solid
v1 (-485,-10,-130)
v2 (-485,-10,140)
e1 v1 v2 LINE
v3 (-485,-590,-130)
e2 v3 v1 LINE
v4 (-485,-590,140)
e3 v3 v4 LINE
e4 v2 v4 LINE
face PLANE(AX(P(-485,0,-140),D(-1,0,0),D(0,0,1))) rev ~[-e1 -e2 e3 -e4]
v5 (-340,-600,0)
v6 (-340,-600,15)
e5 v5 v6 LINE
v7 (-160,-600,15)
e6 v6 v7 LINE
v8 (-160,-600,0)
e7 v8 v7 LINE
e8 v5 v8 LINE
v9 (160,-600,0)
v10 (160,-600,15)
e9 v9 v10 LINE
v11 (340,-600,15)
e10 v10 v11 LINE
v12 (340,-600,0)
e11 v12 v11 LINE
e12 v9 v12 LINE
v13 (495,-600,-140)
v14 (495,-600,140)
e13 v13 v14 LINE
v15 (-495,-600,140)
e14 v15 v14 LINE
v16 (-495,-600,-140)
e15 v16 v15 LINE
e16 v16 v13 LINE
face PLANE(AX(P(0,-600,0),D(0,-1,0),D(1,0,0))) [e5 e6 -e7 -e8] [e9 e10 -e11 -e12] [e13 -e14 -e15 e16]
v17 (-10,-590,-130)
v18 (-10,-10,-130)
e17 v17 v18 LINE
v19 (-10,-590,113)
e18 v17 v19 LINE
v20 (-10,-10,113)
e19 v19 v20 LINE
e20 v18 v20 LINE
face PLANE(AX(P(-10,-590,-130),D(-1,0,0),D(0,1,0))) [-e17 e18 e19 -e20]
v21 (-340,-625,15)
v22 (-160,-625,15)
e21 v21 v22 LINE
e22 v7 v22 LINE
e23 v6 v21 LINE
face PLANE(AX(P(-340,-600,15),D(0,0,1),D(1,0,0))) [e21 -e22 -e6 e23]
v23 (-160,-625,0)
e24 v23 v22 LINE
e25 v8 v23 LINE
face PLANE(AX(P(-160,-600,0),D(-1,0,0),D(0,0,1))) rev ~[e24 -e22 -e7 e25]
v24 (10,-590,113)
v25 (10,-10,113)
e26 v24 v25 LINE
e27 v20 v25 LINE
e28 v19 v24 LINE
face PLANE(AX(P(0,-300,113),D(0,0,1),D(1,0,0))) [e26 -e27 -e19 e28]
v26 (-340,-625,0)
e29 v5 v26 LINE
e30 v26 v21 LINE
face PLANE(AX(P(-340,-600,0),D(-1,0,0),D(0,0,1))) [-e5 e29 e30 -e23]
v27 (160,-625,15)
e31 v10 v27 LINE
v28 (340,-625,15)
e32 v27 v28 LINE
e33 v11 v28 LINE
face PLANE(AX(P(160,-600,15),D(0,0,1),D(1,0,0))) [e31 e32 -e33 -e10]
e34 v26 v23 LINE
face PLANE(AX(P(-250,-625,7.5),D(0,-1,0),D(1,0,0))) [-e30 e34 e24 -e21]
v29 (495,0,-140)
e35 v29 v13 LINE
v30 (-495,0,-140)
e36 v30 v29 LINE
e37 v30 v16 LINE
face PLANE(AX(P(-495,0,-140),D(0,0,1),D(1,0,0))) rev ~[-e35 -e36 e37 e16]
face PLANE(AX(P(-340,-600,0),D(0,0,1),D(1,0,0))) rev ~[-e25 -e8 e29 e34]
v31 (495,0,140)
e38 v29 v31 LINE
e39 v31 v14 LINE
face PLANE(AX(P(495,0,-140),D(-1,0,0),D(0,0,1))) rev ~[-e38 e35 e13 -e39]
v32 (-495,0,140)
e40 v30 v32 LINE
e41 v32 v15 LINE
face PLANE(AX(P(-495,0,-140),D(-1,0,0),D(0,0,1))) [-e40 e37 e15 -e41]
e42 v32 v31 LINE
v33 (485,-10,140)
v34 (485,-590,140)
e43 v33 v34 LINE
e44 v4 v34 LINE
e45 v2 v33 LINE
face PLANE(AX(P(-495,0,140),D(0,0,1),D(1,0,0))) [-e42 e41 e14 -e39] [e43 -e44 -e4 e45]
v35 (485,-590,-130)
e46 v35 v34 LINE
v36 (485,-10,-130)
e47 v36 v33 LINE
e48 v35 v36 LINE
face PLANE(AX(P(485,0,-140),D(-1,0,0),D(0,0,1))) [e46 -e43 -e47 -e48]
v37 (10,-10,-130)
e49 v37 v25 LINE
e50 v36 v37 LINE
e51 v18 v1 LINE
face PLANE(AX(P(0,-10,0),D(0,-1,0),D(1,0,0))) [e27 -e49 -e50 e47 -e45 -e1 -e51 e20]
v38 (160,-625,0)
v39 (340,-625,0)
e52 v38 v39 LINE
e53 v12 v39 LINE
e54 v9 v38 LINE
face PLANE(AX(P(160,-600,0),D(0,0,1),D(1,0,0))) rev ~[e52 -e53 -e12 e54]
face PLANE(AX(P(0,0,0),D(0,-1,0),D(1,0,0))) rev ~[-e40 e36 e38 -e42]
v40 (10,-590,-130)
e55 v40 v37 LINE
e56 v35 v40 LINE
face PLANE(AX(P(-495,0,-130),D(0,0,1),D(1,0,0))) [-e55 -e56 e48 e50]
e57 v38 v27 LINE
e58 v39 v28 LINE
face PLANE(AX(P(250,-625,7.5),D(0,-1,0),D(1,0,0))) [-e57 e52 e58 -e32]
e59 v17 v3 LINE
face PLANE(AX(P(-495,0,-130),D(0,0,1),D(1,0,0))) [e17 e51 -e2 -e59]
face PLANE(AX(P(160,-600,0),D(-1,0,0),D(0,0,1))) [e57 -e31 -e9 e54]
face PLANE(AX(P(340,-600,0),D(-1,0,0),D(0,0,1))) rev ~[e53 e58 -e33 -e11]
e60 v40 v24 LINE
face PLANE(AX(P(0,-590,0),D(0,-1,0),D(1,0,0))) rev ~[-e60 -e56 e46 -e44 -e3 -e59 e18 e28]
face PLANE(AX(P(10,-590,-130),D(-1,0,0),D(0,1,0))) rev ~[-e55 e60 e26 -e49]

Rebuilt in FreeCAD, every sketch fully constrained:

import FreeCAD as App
import Part
import Sketcher


def faces_at(feature, points):
    """Names of the faces that lie closest to the given points."""
    faces = feature.Shape.Faces
    near = lambda p: min(range(len(faces)), key=lambda i: faces[i].distToShape(Part.Vertex(*p))[0])
    return sorted({f"Face{near(p) + 1}" for p in points})

doc = App.newDocument("Part")
params = doc.addObject("Spreadsheet::Sheet", "Params")
for row, (alias, value) in enumerate([
    ("sketch1_width", "990 mm"),
    ("sketch1_height", "280 mm"),
    ("pad1_length", "600 mm"),
    ("thickness_wall", "10 mm"),
    ("sketch2_width", "20 mm"),
    ("sketch2_height", "580 mm"),
    ("pad2_length", "243 mm"),
    ("sketch3_width", "180 mm"),
    ("sketch3_height", "15 mm"),
    ("pad3_length", "25 mm"),
], start=1):
    params.set(f"A{row}", alias)
    params.set(f"B{row}", "=" + value)
    params.setAlias(f"B{row}", alias)

body = doc.addObject("PartDesign::Body", "Body")

# Sketch on XZ plane
sketch1 = doc.addObject("Sketcher::SketchObject", "Sketch")
body.addObject(sketch1)
sketch1.AttachmentSupport = (doc.XZ_Plane, [""])
sketch1.MapMode = "FlatFace"
sketch1.addGeometry([
    Part.LineSegment(App.Vector(-495, 140, 0), App.Vector(-495, -140, 0)),
    Part.LineSegment(App.Vector(-495, -140, 0), App.Vector(495, -140, 0)),
    Part.LineSegment(App.Vector(495, -140, 0), App.Vector(495, 140, 0)),
    Part.LineSegment(App.Vector(495, 140, 0), App.Vector(-495, 140, 0)),
], False)
sketch1.addConstraint([
    Sketcher.Constraint("Coincident", 0, 2, 1, 1),
    Sketcher.Constraint("Coincident", 1, 2, 2, 1),
    Sketcher.Constraint("Coincident", 2, 2, 3, 1),
    Sketcher.Constraint("Coincident", 3, 2, 0, 1),
    Sketcher.Constraint("Vertical", 0),
    Sketcher.Constraint("Horizontal", 1),
    Sketcher.Constraint("Vertical", 2),
    Sketcher.Constraint("Horizontal", 3),
    Sketcher.Constraint("Symmetric", 0, 2, 2, 2, -1, 1),
    Sketcher.Constraint("DistanceX", 1, 1, 1, 2, 990.0),
    Sketcher.Constraint("DistanceY", 0, 2, 0, 1, 280.0),
])
sketch1.setExpression("Constraints[9]", "Params.sketch1_width")
sketch1.setExpression("Constraints[10]", "Params.sketch1_height")
pad1 = doc.addObject("PartDesign::Pad", "Pad")
body.addObject(pad1)
pad1.Profile = sketch1
pad1.setExpression("Length", "Params.pad1_length")
doc.recompute()

thickness = doc.addObject("PartDesign::Thickness", "Thickness")
body.addObject(thickness)
thickness.Base = (pad1, faces_at(pad1, [(0, -300, 140)]))
thickness.setExpression("Value", "Params.thickness_wall")
thickness.Reversed = True
thickness.Join = "Arc"

# Sketch on XY plane
sketch2 = doc.addObject("Sketcher::SketchObject", "Sketch001")
body.addObject(sketch2)
sketch2.AttachmentSupport = (doc.XY_Plane, [""])
sketch2.MapMode = "FlatFace"
sketch2.AttachmentOffset = App.Placement(App.Vector(0, 0, -130), App.Rotation())
sketch2.addGeometry([
    Part.LineSegment(App.Vector(-10, -10, 0), App.Vector(-10, -590, 0)),
    Part.LineSegment(App.Vector(-10, -590, 0), App.Vector(10, -590, 0)),
    Part.LineSegment(App.Vector(10, -590, 0), App.Vector(10, -10, 0)),
    Part.LineSegment(App.Vector(10, -10, 0), App.Vector(-10, -10, 0)),
], False)
sketch2.addConstraint([
    Sketcher.Constraint("Coincident", 0, 2, 1, 1),
    Sketcher.Constraint("Coincident", 1, 2, 2, 1),
    Sketcher.Constraint("Coincident", 2, 2, 3, 1),
    Sketcher.Constraint("Coincident", 3, 2, 0, 1),
    Sketcher.Constraint("Vertical", 0),
    Sketcher.Constraint("Horizontal", 1),
    Sketcher.Constraint("Vertical", 2),
    Sketcher.Constraint("Horizontal", 3),
    Sketcher.Constraint("DistanceX", 1, 1, 1, 2, 20.0),
    Sketcher.Constraint("DistanceY", 0, 2, 0, 1, 580.0),
    Sketcher.Constraint("DistanceX", 0, 2, -1, 1, 10.0),
    Sketcher.Constraint("DistanceY", 0, 2, -1, 1, 590.0),
])
sketch2.setExpression("Constraints[8]", "Params.sketch2_width")
sketch2.setExpression("Constraints[9]", "Params.sketch2_height")
pad2 = doc.addObject("PartDesign::Pad", "Pad001")
body.addObject(pad2)
pad2.Profile = sketch2
pad2.setExpression("Length", "Params.pad2_length")

# Sketch on XZ plane
sketch3 = doc.addObject("Sketcher::SketchObject", "Sketch002")
body.addObject(sketch3)
sketch3.AttachmentSupport = (doc.XZ_Plane, [""])
sketch3.MapMode = "FlatFace"
sketch3.AttachmentOffset = App.Placement(App.Vector(0, 0, 600), App.Rotation())
sketch3.addGeometry([
    Part.LineSegment(App.Vector(160, 15, 0), App.Vector(160, 0, 0)),  # 0
    Part.LineSegment(App.Vector(160, 0, 0), App.Vector(340, 0, 0)),  # 1
    Part.LineSegment(App.Vector(340, 0, 0), App.Vector(340, 15, 0)),  # 2
    Part.LineSegment(App.Vector(340, 15, 0), App.Vector(160, 15, 0)),  # 3
    Part.LineSegment(App.Vector(-340, 15, 0), App.Vector(-340, 0, 0)),  # 4
    Part.LineSegment(App.Vector(-340, 0, 0), App.Vector(-160, 0, 0)),  # 5
    Part.LineSegment(App.Vector(-160, 0, 0), App.Vector(-160, 15, 0)),  # 6
    Part.LineSegment(App.Vector(-160, 15, 0), App.Vector(-340, 15, 0)),  # 7
], False)
sketch3.addConstraint([
    Sketcher.Constraint("Coincident", 0, 2, 1, 1),
    Sketcher.Constraint("Coincident", 1, 2, 2, 1),
    Sketcher.Constraint("Coincident", 2, 2, 3, 1),
    Sketcher.Constraint("Coincident", 3, 2, 0, 1),
    Sketcher.Constraint("Coincident", 4, 2, 5, 1),
    Sketcher.Constraint("Coincident", 5, 2, 6, 1),
    Sketcher.Constraint("Coincident", 6, 2, 7, 1),
    Sketcher.Constraint("Coincident", 7, 2, 4, 1),
    Sketcher.Constraint("Vertical", 0),
    Sketcher.Constraint("Horizontal", 1),
    Sketcher.Constraint("Vertical", 2),
    Sketcher.Constraint("Horizontal", 3),
    Sketcher.Constraint("Vertical", 4),
    Sketcher.Constraint("Horizontal", 5),
    Sketcher.Constraint("Vertical", 6),
    Sketcher.Constraint("Horizontal", 7),
    Sketcher.Constraint("Symmetric", 1, 2, 4, 2, -1, 1),
    Sketcher.Constraint("Symmetric", 0, 2, 5, 2, -2),
    Sketcher.Constraint("Horizontal", 3, 2, 6, 2),
    Sketcher.Constraint("DistanceX", 1, 1, 1, 2, 180.0),
    Sketcher.Constraint("DistanceY", 0, 2, 0, 1, 15.0),
    Sketcher.Constraint("DistanceX", -1, 1, 0, 2, 160.0),
])
sketch3.setExpression("Constraints[19]", "Params.sketch3_width")
sketch3.setExpression("Constraints[20]", "Params.sketch3_height")
pad3 = doc.addObject("PartDesign::Pad", "Pad002")
body.addObject(pad3)
pad3.Profile = sketch3
pad3.setExpression("Length", "Params.pad3_length")

doc.recompute()
